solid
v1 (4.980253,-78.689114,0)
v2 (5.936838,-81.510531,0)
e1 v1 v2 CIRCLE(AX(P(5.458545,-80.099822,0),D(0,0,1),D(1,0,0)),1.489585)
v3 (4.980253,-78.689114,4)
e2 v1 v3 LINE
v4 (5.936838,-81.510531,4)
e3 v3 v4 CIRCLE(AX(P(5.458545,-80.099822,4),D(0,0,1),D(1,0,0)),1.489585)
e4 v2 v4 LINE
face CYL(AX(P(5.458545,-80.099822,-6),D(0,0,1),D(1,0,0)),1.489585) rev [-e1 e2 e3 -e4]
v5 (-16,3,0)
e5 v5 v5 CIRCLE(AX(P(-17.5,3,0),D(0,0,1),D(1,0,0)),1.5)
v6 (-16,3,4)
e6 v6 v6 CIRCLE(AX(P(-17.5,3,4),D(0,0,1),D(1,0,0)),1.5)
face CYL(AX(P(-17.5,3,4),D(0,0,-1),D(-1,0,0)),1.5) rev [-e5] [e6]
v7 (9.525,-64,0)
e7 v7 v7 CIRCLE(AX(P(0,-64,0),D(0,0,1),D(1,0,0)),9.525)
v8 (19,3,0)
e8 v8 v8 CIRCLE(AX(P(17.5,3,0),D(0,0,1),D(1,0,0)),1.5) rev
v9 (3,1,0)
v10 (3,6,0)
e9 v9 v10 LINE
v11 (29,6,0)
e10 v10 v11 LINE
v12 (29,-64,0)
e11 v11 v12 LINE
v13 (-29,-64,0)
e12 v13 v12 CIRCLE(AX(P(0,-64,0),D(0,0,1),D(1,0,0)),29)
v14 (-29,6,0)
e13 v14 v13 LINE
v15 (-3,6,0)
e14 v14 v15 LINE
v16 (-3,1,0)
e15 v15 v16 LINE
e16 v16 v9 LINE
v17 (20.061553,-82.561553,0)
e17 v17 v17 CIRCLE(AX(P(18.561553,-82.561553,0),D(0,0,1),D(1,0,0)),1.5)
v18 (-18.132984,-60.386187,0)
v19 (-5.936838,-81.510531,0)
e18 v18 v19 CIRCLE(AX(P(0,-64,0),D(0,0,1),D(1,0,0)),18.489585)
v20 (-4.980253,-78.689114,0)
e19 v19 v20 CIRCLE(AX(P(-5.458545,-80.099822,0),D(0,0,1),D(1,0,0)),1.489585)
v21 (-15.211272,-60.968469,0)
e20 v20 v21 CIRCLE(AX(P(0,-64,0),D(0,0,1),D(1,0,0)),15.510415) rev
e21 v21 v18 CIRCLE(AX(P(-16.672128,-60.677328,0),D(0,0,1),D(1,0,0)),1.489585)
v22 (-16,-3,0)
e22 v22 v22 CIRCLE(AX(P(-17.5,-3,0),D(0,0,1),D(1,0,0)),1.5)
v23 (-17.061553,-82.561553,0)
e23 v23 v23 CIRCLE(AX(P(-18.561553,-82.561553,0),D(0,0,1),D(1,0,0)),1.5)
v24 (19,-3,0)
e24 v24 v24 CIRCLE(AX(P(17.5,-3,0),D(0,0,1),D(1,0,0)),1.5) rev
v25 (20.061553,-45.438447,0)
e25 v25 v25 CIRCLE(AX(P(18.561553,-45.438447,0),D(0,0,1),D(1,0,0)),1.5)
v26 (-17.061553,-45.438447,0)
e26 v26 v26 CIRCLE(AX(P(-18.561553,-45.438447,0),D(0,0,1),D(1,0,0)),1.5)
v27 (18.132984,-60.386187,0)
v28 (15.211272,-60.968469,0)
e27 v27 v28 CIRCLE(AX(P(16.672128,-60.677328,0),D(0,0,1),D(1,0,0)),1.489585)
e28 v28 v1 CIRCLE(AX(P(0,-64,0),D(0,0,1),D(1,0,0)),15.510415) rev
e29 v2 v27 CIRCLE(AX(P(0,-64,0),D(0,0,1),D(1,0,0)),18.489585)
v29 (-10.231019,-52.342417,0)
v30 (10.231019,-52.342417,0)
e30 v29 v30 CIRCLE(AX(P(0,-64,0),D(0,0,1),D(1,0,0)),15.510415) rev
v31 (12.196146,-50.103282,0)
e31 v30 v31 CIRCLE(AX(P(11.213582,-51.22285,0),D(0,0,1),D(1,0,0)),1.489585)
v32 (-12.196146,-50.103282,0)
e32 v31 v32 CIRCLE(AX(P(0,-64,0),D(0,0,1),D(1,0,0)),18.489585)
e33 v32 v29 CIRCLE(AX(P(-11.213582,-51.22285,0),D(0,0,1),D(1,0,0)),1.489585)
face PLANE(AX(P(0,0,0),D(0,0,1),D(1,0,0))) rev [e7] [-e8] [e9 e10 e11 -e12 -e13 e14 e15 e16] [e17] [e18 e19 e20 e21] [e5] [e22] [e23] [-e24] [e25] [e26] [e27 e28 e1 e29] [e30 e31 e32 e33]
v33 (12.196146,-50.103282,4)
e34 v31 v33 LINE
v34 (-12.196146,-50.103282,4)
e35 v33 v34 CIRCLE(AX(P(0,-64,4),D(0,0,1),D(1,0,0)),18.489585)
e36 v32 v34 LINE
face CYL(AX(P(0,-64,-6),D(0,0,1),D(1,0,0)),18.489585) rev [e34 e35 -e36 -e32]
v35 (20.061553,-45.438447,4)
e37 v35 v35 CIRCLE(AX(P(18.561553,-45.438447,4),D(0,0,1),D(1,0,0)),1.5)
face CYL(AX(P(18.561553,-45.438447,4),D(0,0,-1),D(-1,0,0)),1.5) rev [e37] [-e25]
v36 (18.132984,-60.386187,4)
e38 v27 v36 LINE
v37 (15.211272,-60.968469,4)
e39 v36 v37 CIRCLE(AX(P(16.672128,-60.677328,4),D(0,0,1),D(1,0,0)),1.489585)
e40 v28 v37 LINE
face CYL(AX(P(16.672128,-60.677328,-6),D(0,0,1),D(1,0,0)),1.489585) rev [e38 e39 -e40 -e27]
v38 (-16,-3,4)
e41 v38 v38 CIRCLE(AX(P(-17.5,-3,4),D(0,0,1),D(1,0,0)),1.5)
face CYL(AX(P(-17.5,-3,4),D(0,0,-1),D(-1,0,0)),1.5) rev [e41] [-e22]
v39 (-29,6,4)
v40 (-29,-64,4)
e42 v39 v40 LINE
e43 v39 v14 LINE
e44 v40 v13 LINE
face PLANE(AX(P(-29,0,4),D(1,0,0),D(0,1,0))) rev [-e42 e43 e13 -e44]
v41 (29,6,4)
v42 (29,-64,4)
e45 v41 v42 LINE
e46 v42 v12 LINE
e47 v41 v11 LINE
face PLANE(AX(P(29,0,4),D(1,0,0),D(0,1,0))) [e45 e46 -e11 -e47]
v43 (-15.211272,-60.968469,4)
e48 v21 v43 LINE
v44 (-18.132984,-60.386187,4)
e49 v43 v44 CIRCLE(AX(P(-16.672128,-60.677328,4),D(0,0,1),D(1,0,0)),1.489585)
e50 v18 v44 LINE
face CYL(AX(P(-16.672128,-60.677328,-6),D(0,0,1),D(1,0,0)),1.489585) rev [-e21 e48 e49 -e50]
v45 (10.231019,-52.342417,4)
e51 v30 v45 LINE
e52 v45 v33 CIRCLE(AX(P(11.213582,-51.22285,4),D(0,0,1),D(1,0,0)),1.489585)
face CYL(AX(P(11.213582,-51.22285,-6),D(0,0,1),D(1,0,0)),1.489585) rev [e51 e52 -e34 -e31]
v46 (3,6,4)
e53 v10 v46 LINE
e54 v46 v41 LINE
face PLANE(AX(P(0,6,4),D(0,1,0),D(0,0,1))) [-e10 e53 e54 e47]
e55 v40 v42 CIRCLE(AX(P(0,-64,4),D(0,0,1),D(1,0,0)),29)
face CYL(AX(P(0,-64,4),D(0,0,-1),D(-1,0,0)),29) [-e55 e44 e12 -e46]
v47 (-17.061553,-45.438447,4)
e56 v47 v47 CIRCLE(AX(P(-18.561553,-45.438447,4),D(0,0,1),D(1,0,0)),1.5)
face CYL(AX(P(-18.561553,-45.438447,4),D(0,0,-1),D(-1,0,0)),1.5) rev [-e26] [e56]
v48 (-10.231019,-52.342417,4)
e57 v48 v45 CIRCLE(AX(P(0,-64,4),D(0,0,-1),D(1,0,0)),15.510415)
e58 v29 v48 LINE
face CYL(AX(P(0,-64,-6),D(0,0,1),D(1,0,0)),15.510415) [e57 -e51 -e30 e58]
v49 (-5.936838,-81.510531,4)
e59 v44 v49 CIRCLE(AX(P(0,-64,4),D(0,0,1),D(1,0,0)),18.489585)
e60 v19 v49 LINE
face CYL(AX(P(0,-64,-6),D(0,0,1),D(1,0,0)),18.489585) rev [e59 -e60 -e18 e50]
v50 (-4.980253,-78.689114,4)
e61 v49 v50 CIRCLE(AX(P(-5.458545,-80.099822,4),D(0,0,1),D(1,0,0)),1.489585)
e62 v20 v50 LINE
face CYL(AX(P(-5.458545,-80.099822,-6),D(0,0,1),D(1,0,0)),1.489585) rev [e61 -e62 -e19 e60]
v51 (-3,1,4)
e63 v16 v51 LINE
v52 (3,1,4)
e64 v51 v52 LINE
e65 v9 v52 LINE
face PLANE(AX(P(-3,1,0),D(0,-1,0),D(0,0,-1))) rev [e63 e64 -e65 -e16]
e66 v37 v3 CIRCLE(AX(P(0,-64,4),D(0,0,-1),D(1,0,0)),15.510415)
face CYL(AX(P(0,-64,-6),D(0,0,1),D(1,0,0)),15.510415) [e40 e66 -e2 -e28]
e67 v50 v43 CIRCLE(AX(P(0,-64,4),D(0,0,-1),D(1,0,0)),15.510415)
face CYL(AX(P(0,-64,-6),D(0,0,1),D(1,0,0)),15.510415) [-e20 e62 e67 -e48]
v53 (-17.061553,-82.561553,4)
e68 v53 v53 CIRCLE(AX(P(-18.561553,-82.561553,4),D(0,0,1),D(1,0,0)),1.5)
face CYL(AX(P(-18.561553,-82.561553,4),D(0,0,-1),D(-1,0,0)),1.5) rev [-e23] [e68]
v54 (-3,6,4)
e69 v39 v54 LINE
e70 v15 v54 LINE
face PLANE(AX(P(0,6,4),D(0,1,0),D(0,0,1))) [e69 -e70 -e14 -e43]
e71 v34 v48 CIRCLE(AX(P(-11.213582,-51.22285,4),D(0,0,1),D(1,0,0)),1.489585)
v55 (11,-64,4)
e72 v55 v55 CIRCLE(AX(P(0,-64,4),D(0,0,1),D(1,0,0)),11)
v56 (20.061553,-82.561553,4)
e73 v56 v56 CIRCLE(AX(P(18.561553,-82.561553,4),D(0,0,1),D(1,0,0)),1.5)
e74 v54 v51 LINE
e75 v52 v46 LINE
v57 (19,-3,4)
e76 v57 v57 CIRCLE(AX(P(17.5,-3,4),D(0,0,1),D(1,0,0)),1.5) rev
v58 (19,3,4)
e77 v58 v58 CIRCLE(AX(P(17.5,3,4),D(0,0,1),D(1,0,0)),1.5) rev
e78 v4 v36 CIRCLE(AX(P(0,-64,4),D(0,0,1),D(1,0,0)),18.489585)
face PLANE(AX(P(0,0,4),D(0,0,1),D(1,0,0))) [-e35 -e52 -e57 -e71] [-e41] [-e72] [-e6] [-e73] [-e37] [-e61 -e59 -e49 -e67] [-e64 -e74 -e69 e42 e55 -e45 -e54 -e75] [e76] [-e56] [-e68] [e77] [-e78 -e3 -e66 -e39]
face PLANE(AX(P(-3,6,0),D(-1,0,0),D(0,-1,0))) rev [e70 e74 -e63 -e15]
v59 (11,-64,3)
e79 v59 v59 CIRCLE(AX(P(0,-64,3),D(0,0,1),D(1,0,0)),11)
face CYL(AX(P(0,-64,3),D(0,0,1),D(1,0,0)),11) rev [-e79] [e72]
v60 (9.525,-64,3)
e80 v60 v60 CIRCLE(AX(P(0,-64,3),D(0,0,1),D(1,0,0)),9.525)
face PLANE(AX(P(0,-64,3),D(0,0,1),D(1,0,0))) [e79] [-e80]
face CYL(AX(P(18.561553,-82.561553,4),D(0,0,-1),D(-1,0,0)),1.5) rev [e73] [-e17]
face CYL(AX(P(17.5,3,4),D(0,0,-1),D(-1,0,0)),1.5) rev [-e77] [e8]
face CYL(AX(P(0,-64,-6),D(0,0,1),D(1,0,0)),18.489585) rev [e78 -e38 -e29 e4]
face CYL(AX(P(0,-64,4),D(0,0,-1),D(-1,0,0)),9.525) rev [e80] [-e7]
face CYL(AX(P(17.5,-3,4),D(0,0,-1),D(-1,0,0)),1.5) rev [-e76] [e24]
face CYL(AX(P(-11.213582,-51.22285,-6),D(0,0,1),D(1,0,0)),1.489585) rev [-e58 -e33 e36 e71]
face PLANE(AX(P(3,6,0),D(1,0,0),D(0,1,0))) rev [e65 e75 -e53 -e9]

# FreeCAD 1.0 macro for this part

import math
import FreeCAD as App
import Part
import Sketcher

V = App.Vector
Q = App.Units.Quantity


def add_polygon(sketch, points):
    """Adds a closed chain of lines whose ends are joined by coincident constraints."""
    first, n = sketch.GeometryCount, len(points)
    for a, b in zip(points, points[1:] + points[:1]):
        sketch.addGeometry(Part.LineSegment(App.Vector(*a, 0), App.Vector(*b, 0)), False)
    for i in range(n):
        sketch.addConstraint(Sketcher.Constraint("Coincident", first + i, 2, first + (i + 1) % n, 1))

doc = App.newDocument("Part")
body = doc.addObject("PartDesign::Body", "Body")

# Sketch on XY plane
sketch1 = body.newObject("Sketcher::SketchObject", "Sketch")
sketch1.AttachmentSupport = (doc.getObject("XY_Plane"), [""])
sketch1.MapMode = "FlatFace"
sketch1.addGeometry([
    Part.LineSegment(V(29, 6, 0), V(-29, 6, 0)),  # 0
    Part.LineSegment(V(-29, 6, 0), V(-29, -64, 0)),  # 1
    Part.ArcOfCircle(Part.Circle(V(0, -64, 0), V(0, 0, 1), 29), math.radians(180), math.radians(360)),  # 2
    Part.LineSegment(V(29, -64, 0), V(29, 6, 0)),  # 3
    Part.Circle(V(18.6, -82.6, 0), V(0, 0, 1), 1.5),  # 4
    Part.Circle(V(18.6, -45.4, 0), V(0, 0, 1), 1.5),  # 5
    Part.Circle(V(0, -64, 0), V(0, 0, 1), 9.5),  # 6
    Part.Circle(V(-18.6, -82.6, 0), V(0, 0, 1), 1.5),  # 7
    Part.Circle(V(-18.6, -45.4, 0), V(0, 0, 1), 1.5),  # 8
    Part.Circle(V(17.5, -3, 0), V(0, 0, 1), 1.5),  # 9
    Part.Circle(V(17.5, 3, 0), V(0, 0, 1), 1.5),  # 10
    Part.Circle(V(-17.5, -3, 0), V(0, 0, 1), 1.5),  # 11
    Part.Circle(V(-17.5, 3, 0), V(0, 0, 1), 1.5),  # 12
], False)
sketch1.addConstraint([
    Sketcher.Constraint("Coincident", 0, 2, 1, 1),
    Sketcher.Constraint("Tangent", 1, 2, 2, 1),
    Sketcher.Constraint("Tangent", 2, 2, 3, 1),
    Sketcher.Constraint("Coincident", 3, 2, 0, 1),
    Sketcher.Constraint("Horizontal", 0),
    Sketcher.Constraint("Vertical", 1),
    Sketcher.Constraint("Vertical", 3),
    Sketcher.Constraint("Coincident", 6, 3, 2, 3),
    Sketcher.Constraint("Equal", 4, 5),
    Sketcher.Constraint("Equal", 5, 7),
    Sketcher.Constraint("Equal", 7, 8),
    Sketcher.Constraint("Equal", 8, 9),
    Sketcher.Constraint("Equal", 9, 10),
    Sketcher.Constraint("Equal", 10, 11),
    Sketcher.Constraint("Equal", 11, 12),
    Sketcher.Constraint("Symmetric", 10, 3, 11, 3, -1, 1),
    Sketcher.Constraint("Symmetric", 9, 3, 12, 3, -1, 1),
    Sketcher.Constraint("Symmetric", 4, 3, 7, 3, -2),
    Sketcher.Constraint("Symmetric", 5, 3, 8, 3, -2),
    Sketcher.Constraint("Symmetric", 9, 3, 11, 3, -2),
    Sketcher.Constraint("PointOnObject", 2, 3, -2),
    Sketcher.Constraint("Vertical", 4, 3, 5, 3),
    Sketcher.Constraint("Diameter", 4, Q("3 mm")),
    Sketcher.Constraint("Radius", 2, Q("29 mm")),
    Sketcher.Constraint("Diameter", 6, Q("19.05 mm")),
    Sketcher.Constraint("DistanceY", 1, 2, 1, 1, Q("70 mm")),
    Sketcher.Constraint("DistanceY", 2, 3, -1, 1, Q("64 mm")),
    Sketcher.Constraint("DistanceY", 9, 3, -1, 1, Q("3 mm")),
    Sketcher.Constraint("DistanceX", 11, 3, 9, 3, Q("35 mm")),
    Sketcher.Constraint("DistanceX", -1, 1, 4, 3, Q("18.561553 mm")),
    Sketcher.Constraint("DistanceY", 4, 3, -1, 1, Q("82.561553 mm")),
    Sketcher.Constraint("DistanceY", 5, 3, -1, 1, Q("45.438447 mm")),
])
pad1 = body.newObject("PartDesign::Pad", "Pad")
pad1.Profile = sketch1
pad1.Length = 4

# Sketch on XY plane
sketch2 = body.newObject("Sketcher::SketchObject", "Sketch001")
sketch2.AttachmentSupport = (doc.getObject("XY_Plane"), [""])
sketch2.MapMode = "FlatFace"
sketch2.AttachmentOffset = App.Placement(V(0, 0, 4), App.Rotation())
add_polygon(sketch2, [(-3, 6), (-3, 1), (3, 1), (3, 6)])  # lines 0-3
sketch2.addConstraint([
    Sketcher.Constraint("Vertical", 0),
    Sketcher.Constraint("Horizontal", 1),
    Sketcher.Constraint("Vertical", 2),
    Sketcher.Constraint("Horizontal", 3),
    Sketcher.Constraint("DistanceX", 1, 1, 1, 2, Q("6 mm")),
    Sketcher.Constraint("DistanceY", 0, 2, 0, 1, Q("5 mm")),
    Sketcher.Constraint("DistanceX", 0, 2, -1, 1, Q("3 mm")),
    Sketcher.Constraint("DistanceY", -1, 1, 0, 2, Q("1 mm")),
])
pocket1 = body.newObject("PartDesign::Pocket", "Pocket")
pocket1.Profile = sketch2
pocket1.Type = "ThroughAll"

# Sketch on XY plane
sketch3 = body.newObject("Sketcher::SketchObject", "Sketch002")
sketch3.AttachmentSupport = (doc.getObject("XY_Plane"), [""])
sketch3.MapMode = "FlatFace"
sketch3.AttachmentOffset = App.Placement(V(0, 0, 4), App.Rotation())
sketch3.addGeometry([
    Part.ArcOfCircle(Part.Circle(V(0, -64, 0), V(0, 0, 1), 18.5), math.radians(49), math.radians(131)),  # 0
    Part.ArcOfCircle(Part.Circle(V(-11.2, -51.2, 0), V(0, 0, 1), 1.5), math.radians(131), math.radians(311)),  # 1
    Part.ArcOfCircle(Part.Circle(V(0, -64, 0), V(0, 0, 1), 15.5), math.radians(49), math.radians(131)),  # 2
    Part.ArcOfCircle(Part.Circle(V(11.2, -51.2, 0), V(0, 0, 1), 1.5), math.radians(-131), math.radians(49)),  # 3
    Part.ArcOfCircle(Part.Circle(V(0, -64, 0), V(0, 0, 1), 18.5), math.radians(-71), math.radians(11)),  # 4
    Part.ArcOfCircle(Part.Circle(V(16.7, -60.7, 0), V(0, 0, 1), 1.5), math.radians(11), math.radians(191)),  # 5
    Part.ArcOfCircle(Part.Circle(V(0, -64, 0), V(0, 0, 1), 15.5), math.radians(-71), math.radians(11)),  # 6
    Part.ArcOfCircle(Part.Circle(V(5.5, -80.1, 0), V(0, 0, 1), 1.5), math.radians(109), math.radians(289)),  # 7
    Part.ArcOfCircle(Part.Circle(V(0, -64, 0), V(0, 0, 1), 18.5), math.radians(169), math.radians(251)),  # 8
    Part.ArcOfCircle(Part.Circle(V(-5.5, -80.1, 0), V(0, 0, 1), 1.5), math.radians(-109), math.radians(71)),  # 9
    Part.ArcOfCircle(Part.Circle(V(0, -64, 0), V(0, 0, 1), 15.5), math.radians(169), math.radians(251)),  # 10
    Part.ArcOfCircle(Part.Circle(V(-16.7, -60.7, 0), V(0, 0, 1), 1.5), math.radians(-11), math.radians(169)),  # 11
], False)
sketch3.addConstraint([
    Sketcher.Constraint("Tangent", 0, 2, 1, 1),
    Sketcher.Constraint("Tangent", 1, 2, 2, 2),
    Sketcher.Constraint("Tangent", 2, 1, 3, 1),
    Sketcher.Constraint("Tangent", 3, 2, 0, 1),
    Sketcher.Constraint("Tangent", 4, 2, 5, 1),
    Sketcher.Constraint("Tangent", 5, 2, 6, 2),
    Sketcher.Constraint("Tangent", 6, 1, 7, 1),
    Sketcher.Constraint("Tangent", 7, 2, 4, 1),
    Sketcher.Constraint("Tangent", 8, 2, 9, 1),
    Sketcher.Constraint("Tangent", 9, 2, 10, 2),
    Sketcher.Constraint("Tangent", 10, 1, 11, 1),
    Sketcher.Constraint("Tangent", 11, 2, 8, 1),
    Sketcher.Constraint("Coincident", 2, 3, 0, 3),
    Sketcher.Constraint("Coincident", 4, 3, 0, 3),
    Sketcher.Constraint("Coincident", 6, 3, 0, 3),
    Sketcher.Constraint("Coincident", 8, 3, 0, 3),
    Sketcher.Constraint("Coincident", 10, 3, 0, 3),
    Sketcher.Constraint("Equal", 0, 4),
    Sketcher.Constraint("Equal", 3, 5),
    Sketcher.Constraint("Equal", 4, 8),
    Sketcher.Constraint("Equal", 7, 9),
    Sketcher.Constraint("Symmetric", 1, 3, 3, 3, -2),
    Sketcher.Constraint("Horizontal", 7, 3, 9, 3),
    Sketcher.Constraint("Horizontal", 5, 3, 11, 3),
    Sketcher.Constraint("DistanceY", 0, 3, -1, 1, Q("64 mm")),
    Sketcher.Constraint("Radius", 0, Q("18.489585 mm")),
    Sketcher.Constraint("Radius", 1, Q("1.489585 mm")),
    Sketcher.Constraint("DistanceX", 3, 3, 4, 2, Q("6.919401 mm")),
    Sketcher.Constraint("DistanceX", 9, 3, 6, 1, Q("10.438799 mm")),
    Sketcher.Constraint("DistanceY", 1, 3, -1, 1, Q("51.22285 mm")),
])
pocket2 = body.newObject("PartDesign::Pocket", "Pocket001")
pocket2.Profile = sketch3
pocket2.Length = 10

# Sketch on XY plane
sketch4 = body.newObject("Sketcher::SketchObject", "Sketch003")
sketch4.AttachmentSupport = (doc.getObject("XY_Plane"), [""])
sketch4.MapMode = "FlatFace"
sketch4.AttachmentOffset = App.Placement(V(0, 0, 4), App.Rotation())
sketch4.addGeometry(Part.Circle(V(0, -64, 0), V(0, 0, 1), 11), False)
sketch4.addConstraint([
    Sketcher.Constraint("PointOnObject", 0, 3, -2),
    Sketcher.Constraint("Diameter", 0, Q("22 mm")),
    Sketcher.Constraint("DistanceY", 0, 3, -1, 1, Q("64 mm")),
])
pocket3 = body.newObject("PartDesign::Pocket", "Pocket002")
pocket3.Profile = sketch4
pocket3.Length = 1

doc.recompute()
